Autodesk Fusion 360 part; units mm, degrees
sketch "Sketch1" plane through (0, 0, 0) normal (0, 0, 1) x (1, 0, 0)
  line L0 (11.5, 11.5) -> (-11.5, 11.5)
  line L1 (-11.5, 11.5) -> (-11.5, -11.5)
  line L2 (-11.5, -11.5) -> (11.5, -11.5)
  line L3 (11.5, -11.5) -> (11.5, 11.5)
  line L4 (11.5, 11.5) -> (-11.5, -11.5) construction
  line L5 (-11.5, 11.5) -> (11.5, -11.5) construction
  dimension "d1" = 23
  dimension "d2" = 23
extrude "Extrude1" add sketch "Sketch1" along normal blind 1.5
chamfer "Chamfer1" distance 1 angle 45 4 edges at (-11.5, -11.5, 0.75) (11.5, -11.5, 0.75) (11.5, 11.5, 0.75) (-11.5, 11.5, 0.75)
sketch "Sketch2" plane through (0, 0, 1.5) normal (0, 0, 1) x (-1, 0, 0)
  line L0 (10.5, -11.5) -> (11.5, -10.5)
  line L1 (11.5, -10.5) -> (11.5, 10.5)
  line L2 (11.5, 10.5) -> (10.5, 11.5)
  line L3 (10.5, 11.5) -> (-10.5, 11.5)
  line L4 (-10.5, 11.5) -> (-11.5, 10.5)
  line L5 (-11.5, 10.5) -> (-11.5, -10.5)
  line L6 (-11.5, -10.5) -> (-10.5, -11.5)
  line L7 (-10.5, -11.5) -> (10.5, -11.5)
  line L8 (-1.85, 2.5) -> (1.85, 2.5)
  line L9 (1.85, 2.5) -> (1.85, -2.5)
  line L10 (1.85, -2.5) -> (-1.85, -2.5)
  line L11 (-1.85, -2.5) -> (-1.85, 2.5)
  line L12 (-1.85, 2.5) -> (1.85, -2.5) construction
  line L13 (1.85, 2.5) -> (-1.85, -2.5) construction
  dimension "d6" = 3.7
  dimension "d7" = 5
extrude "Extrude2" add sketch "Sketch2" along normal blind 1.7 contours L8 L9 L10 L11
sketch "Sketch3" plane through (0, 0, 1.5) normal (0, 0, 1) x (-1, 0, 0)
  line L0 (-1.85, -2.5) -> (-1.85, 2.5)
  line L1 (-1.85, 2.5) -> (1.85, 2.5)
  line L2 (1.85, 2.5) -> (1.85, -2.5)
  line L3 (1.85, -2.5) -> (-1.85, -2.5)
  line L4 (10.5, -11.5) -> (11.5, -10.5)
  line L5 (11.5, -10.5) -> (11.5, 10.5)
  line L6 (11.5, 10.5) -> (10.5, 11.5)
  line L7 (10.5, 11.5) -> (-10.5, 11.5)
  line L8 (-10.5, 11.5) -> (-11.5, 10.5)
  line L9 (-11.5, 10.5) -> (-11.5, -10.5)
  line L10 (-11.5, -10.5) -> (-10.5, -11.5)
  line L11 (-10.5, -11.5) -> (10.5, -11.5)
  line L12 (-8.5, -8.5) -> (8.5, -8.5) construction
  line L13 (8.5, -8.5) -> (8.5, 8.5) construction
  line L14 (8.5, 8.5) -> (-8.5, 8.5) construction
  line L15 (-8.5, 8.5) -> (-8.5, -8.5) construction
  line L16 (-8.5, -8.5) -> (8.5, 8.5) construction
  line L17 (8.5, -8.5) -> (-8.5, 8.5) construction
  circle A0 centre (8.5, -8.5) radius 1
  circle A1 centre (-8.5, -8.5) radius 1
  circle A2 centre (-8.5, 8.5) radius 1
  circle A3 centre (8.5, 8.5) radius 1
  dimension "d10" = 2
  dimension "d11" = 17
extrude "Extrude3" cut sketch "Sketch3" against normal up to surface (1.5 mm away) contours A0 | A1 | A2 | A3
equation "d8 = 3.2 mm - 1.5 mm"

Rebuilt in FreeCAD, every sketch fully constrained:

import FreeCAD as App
import Part
import Sketcher
Q = App.Units.Quantity


def edges_at(feature, points):
    """Names of the edges that pass closest to the given points."""
    edges = feature.Shape.Edges
    near = lambda p: min(range(len(edges)), key=lambda i: edges[i].distToShape(Part.Vertex(*p))[0])
    return sorted({f"Edge{near(p) + 1}" for p in points})


def add_polygon(sketch, points):
    """Adds a closed chain of lines whose ends are joined by coincident constraints."""
    first, n = sketch.GeometryCount, len(points)
    for a, b in zip(points, points[1:] + points[:1]):
        sketch.addGeometry(Part.LineSegment(App.Vector(*a, 0), App.Vector(*b, 0)), False)
    for i in range(n):
        sketch.addConstraint(Sketcher.Constraint("Coincident", first + i, 2, first + (i + 1) % n, 1))

doc = App.newDocument("Part")
body = doc.addObject("PartDesign::Body", "Body")

sketch1 = body.newObject("Sketcher::SketchObject", "Sketch")
sketch1.AttachmentSupport = (doc.getObject("XY_Plane"), [""])
sketch1.MapMode = "FlatFace"
add_polygon(sketch1, [(12, -12), (12, 12), (-12, 12), (-12, -12)])
sketch1.addConstraint([
    Sketcher.Constraint("Vertical", 0),
    Sketcher.Constraint("Horizontal", 1),
    Sketcher.Constraint("Vertical", 2),
    Sketcher.Constraint("Horizontal", 3),
    Sketcher.Constraint("Symmetric", 0, 2, 2, 2, -1, 1),
    Sketcher.Constraint("Equal", 3, 0),
    Sketcher.Constraint("DistanceX", 1, 2, 1, 1, Q("23 mm")),
])
pad1 = body.newObject("PartDesign::Pad", "Pad")
pad1.Profile = sketch1
pad1.Length = 1.5
doc.recompute()

chamfer = body.newObject("PartDesign::Chamfer", "Chamfer")
chamfer.Base = (pad1, edges_at(pad1, [
    (-11.5, -11.5, 0.75),
    (11.5, -11.5, 0.75),
    (11.5, 11.5, 0.75),
    (-11.5, 11.5, 0.75),
]))
chamfer.Size = 1

sketch2 = body.newObject("Sketcher::SketchObject", "Sketch001")
sketch2.AttachmentSupport = (doc.getObject("XY_Plane"), [""])
sketch2.MapMode = "FlatFace"
sketch2.AttachmentOffset = App.Placement(App.Vector(0, 0, 1.5), App.Rotation())
add_polygon(sketch2, [(-1.9, -2.5), (1.9, -2.5), (1.9, 2.5), (-1.9, 2.5)])
sketch2.addConstraint([
    Sketcher.Constraint("Horizontal", 0),
    Sketcher.Constraint("Vertical", 1),
    Sketcher.Constraint("Horizontal", 2),
    Sketcher.Constraint("Vertical", 3),
    Sketcher.Constraint("Symmetric", 0, 2, 2, 2, -1, 1),
    Sketcher.Constraint("DistanceY", 1, 1, 1, 2, Q("5 mm")),
    Sketcher.Constraint("DistanceX", 0, 1, 0, 2, Q("3.7 mm")),
])
pad2 = body.newObject("PartDesign::Pad", "Pad001")
pad2.Profile = sketch2
pad2.Length = 1.7

sketch3 = body.newObject("Sketcher::SketchObject", "Sketch002")
sketch3.AttachmentSupport = (doc.getObject("XY_Plane"), [""])
sketch3.MapMode = "FlatFace"
sketch3.AttachmentOffset = App.Placement(App.Vector(0, 0, 1.5), App.Rotation())
sketch3.addGeometry([
    Part.Circle(App.Vector(-8.5, 8.5, 0), App.Vector(0, 0, 1), 1),
    Part.Circle(App.Vector(8.5, 8.5, 0), App.Vector(0, 0, 1), 1),
    Part.Circle(App.Vector(8.5, -8.5, 0), App.Vector(0, 0, 1), 1),
    Part.Circle(App.Vector(-8.5, -8.5, 0), App.Vector(0, 0, 1), 1),
], False)
sketch3.addConstraint([
    Sketcher.Constraint("Equal", 0, 1),
    Sketcher.Constraint("Equal", 1, 2),
    Sketcher.Constraint("Equal", 2, 3),
    Sketcher.Constraint("Symmetric", 0, 3, 2, 3, -1, 1),
    Sketcher.Constraint("Symmetric", 1, 3, 3, 3, -1, 1),
    Sketcher.Constraint("Symmetric", 0, 3, 1, 3, -2),
    Sketcher.Constraint("Diameter", 0, Q("2 mm")),
    Sketcher.Constraint("DistanceX", 0, 3, 1, 3, Q("17 mm")),
    Sketcher.Constraint("DistanceY", 2, 3, 1, 3, Q("17 mm")),
])
pocket1 = body.newObject("PartDesign::Pocket", "Pocket")
pocket1.Profile = sketch3
pocket1.Length = 1.5

doc.recompute()
